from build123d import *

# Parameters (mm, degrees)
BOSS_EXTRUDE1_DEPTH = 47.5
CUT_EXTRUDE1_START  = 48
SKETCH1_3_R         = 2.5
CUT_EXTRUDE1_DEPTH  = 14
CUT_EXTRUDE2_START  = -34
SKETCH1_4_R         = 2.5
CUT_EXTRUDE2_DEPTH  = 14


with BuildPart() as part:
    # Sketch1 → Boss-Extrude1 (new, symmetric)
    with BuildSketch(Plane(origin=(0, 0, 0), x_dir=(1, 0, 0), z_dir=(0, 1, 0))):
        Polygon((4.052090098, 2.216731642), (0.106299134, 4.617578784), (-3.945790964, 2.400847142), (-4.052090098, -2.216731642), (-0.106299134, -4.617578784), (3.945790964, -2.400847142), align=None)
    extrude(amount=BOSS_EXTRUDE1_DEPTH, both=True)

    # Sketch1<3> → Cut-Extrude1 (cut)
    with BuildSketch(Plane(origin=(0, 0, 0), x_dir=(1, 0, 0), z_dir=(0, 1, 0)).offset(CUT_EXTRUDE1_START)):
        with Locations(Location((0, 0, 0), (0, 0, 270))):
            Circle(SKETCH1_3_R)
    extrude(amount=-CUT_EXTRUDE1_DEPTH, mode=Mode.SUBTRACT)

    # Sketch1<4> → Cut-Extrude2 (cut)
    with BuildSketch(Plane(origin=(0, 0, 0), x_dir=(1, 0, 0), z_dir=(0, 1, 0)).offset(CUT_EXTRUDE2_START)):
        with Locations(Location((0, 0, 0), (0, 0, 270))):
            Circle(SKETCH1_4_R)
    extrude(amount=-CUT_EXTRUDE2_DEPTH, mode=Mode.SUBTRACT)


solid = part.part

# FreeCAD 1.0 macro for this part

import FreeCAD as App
import Part
import Sketcher
from FreeCAD import Vector


def add_polygon(sketch, points):
    """Adds a closed chain of lines whose ends are joined by coincident constraints."""
    first, n = sketch.GeometryCount, len(points)
    for a, b in zip(points, points[1:] + points[:1]):
        sketch.addGeometry(Part.LineSegment(App.Vector(*a, 0), App.Vector(*b, 0)), False)
    for i in range(n):
        sketch.addConstraint(Sketcher.Constraint("Coincident", first + i, 2, first + (i + 1) % n, 1))

doc = App.newDocument("Part")
body = doc.addObject("PartDesign::Body", "Body")

# Sketch on XZ plane
sketch1 = doc.addObject("Sketcher::SketchObject", "Sketch")
body.addObject(sketch1)
sketch1.AttachmentSupport = (doc.XZ_Plane, [""])
sketch1.MapMode = "FlatFace"
add_polygon(sketch1, [(4.1, -2.2), (0.1, -4.6), (-3.9, -2.4), (-4.1, 2.2), (-0.1, 4.6), (3.9, 2.4)])  # lines 0-5
sketch1.addConstraint(Sketcher.Constraint("Symmetric", 0, 2, 3, 2, -1, 1))
sketch1.addConstraint(Sketcher.Constraint("Symmetric", 1, 2, 4, 2, -1, 1))
sketch1.addConstraint(Sketcher.Constraint("Symmetric", 2, 2, 5, 2, -1, 1))
sketch1.addConstraint(Sketcher.Constraint("Equal", 0, 1))
sketch1.addConstraint(Sketcher.Constraint("Equal", 1, 2))
sketch1.addConstraint(Sketcher.Constraint("DistanceX", -1, 1, 0, 2, 0.106299))
sketch1.addConstraint(Sketcher.Constraint("DistanceX", 2, 2, 1, 2, 0.106299))
sketch1.addConstraint(Sketcher.Constraint("DistanceY", 0, 2, -1, 1, 4.617579))
sketch1.addConstraint(Sketcher.Constraint("DistanceX", 1, 2, -1, 1, 3.945791))
pad1 = doc.addObject("PartDesign::Pad", "Pad")
body.addObject(pad1)
pad1.Profile = sketch1
pad1.Length = 95
pad1.Midplane = True

# Sketch on XZ plane
sketch2 = doc.addObject("Sketcher::SketchObject", "Sketch001")
body.addObject(sketch2)
sketch2.AttachmentSupport = (doc.XZ_Plane, [""])
sketch2.MapMode = "FlatFace"
sketch2.AttachmentOffset = App.Placement(Vector(0, 0, -48), App.Rotation())
sketch2.addGeometry(Part.Circle(Vector(0, 0, 0), Vector(0, 0, 1), 2.5), False)
sketch2.addConstraint(Sketcher.Constraint("Coincident", 0, 3, -1, 1))
sketch2.addConstraint(Sketcher.Constraint("Diameter", 0, 5.0))
pocket1 = doc.addObject("PartDesign::Pocket", "Pocket")
body.addObject(pocket1)
pocket1.Profile = sketch2
pocket1.Length = 14
pocket1.Reversed = True

# Sketch on XZ plane
sketch3 = doc.addObject("Sketcher::SketchObject", "Sketch002")
body.addObject(sketch3)
sketch3.AttachmentSupport = (doc.XZ_Plane, [""])
sketch3.MapMode = "FlatFace"
sketch3.AttachmentOffset = App.Placement(Vector(0, 0, 34), App.Rotation())
sketch3.addGeometry(Part.Circle(Vector(0, 0, 0), Vector(0, 0, 1), 2.5), False)
sketch3.addConstraint(Sketcher.Constraint("Coincident", 0, 3, -1, 1))
sketch3.addConstraint(Sketcher.Constraint("Diameter", 0, 5.0))
pocket2 = doc.addObject("PartDesign::Pocket", "Pocket001")
body.addObject(pocket2)
pocket2.Profile = sketch3
pocket2.Length = 14
pocket2.Reversed = True

doc.recompute()
